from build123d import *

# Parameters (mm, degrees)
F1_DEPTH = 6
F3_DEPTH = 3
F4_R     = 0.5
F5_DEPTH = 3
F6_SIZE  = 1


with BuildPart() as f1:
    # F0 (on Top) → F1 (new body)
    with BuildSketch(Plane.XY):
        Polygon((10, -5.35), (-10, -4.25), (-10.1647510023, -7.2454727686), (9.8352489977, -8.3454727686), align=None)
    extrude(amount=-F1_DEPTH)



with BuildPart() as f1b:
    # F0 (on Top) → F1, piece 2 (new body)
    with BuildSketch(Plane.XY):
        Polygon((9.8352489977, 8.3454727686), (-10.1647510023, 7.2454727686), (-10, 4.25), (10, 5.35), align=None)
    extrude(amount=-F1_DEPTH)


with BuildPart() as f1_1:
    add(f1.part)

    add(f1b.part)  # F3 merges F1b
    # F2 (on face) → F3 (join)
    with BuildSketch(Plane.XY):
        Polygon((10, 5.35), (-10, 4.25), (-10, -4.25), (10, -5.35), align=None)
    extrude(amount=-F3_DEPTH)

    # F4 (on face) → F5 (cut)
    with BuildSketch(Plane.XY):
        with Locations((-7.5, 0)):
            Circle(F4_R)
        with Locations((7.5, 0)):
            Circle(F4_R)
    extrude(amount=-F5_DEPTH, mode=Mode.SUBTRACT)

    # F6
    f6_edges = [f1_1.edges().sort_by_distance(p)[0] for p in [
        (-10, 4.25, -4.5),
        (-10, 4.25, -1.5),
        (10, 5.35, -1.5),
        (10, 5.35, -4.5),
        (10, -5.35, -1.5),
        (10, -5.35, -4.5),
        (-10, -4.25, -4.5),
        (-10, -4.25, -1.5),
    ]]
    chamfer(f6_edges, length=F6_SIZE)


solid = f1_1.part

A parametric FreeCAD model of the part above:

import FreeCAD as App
import Part
import Sketcher


def edges_at(feature, points):
    """Names of the edges that pass closest to the given points."""
    edges = feature.Shape.Edges
    near = lambda p: min(range(len(edges)), key=lambda i: edges[i].distToShape(Part.Vertex(*p))[0])
    return sorted({f"Edge{near(p) + 1}" for p in points})

doc = App.newDocument("Part")
params = doc.addObject("Spreadsheet::Sheet", "Params")
for row, (alias, value) in enumerate([
    ("sketch1_length", "3 mm"),
    ("pad1_length", "6 mm"),
    ("sketch2_length", "3 mm"),
    ("pad2_length", "6 mm"),
    ("sketch3_height", "8.5 mm"),
    ("sketch3_height2", "10.7 mm"),
    ("pad3_length", "3 mm"),
    ("sketch4_diameter", "1 mm"),
    ("pocket1_length", "3 mm"),
    ("chamfer_size", "1 mm"),
], start=1):
    params.set(f"A{row}", alias)
    params.set(f"B{row}", "=" + value)
    params.setAlias(f"B{row}", alias)

body = doc.addObject("PartDesign::Body", "Body")

sketch1 = doc.addObject("Sketcher::SketchObject", "Sketch")
body.addObject(sketch1)
sketch1.AttachmentSupport = (doc.XY_Plane, [""])
sketch1.MapMode = "FlatFace"
sketch1.addGeometry([
    Part.LineSegment(App.Vector(10, -5.35, 0), App.Vector(-10, -4.25, 0)),
    Part.LineSegment(App.Vector(-10, -4.25, 0), App.Vector(-10.164751, -7.245473, 0)),
    Part.LineSegment(App.Vector(-10.164751, -7.245473, 0), App.Vector(9.835249, -8.345473, 0)),
    Part.LineSegment(App.Vector(9.835249, -8.345473, 0), App.Vector(10, -5.35, 0)),
], False)
sketch1.addConstraint([
    Sketcher.Constraint("Coincident", 0, 2, 1, 1),
    Sketcher.Constraint("Coincident", 1, 2, 2, 1),
    Sketcher.Constraint("Coincident", 2, 2, 3, 1),
    Sketcher.Constraint("Coincident", 3, 2, 0, 1),
    Sketcher.Constraint("Perpendicular", 0, 1),
    Sketcher.Constraint("Perpendicular", 1, 2),
    Sketcher.Constraint("Perpendicular", 2, 3),
    Sketcher.Constraint("Distance", 1, 3.0),
    Sketcher.Constraint("DistanceX", 0, 2, -1, 1, 10.0),
    Sketcher.Constraint("DistanceX", -1, 1, 3, 2, 10.0),
    Sketcher.Constraint("DistanceY", 2, 2, 1, 2, 1.1),
    Sketcher.Constraint("DistanceY", 0, 2, -1, 1, 4.25),
])
sketch1.setExpression("Constraints[7]", "Params.sketch1_length")
pad1 = doc.addObject("PartDesign::Pad", "Pad")
body.addObject(pad1)
pad1.Profile = sketch1
pad1.setExpression("Length", "Params.pad1_length")
pad1.Reversed = True
body2 = doc.addObject("PartDesign::Body", "Body001")

sketch2 = doc.addObject("Sketcher::SketchObject", "Sketch001")
body2.addObject(sketch2)
sketch2.AttachmentSupport = (doc.getObject("XY_Plane001"), [""])
sketch2.MapMode = "FlatFace"
sketch2.addGeometry([
    Part.LineSegment(App.Vector(9.835249, 8.345473, 0), App.Vector(-10.164751, 7.245473, 0)),
    Part.LineSegment(App.Vector(-10.164751, 7.245473, 0), App.Vector(-10, 4.25, 0)),
    Part.LineSegment(App.Vector(-10, 4.25, 0), App.Vector(10, 5.35, 0)),
    Part.LineSegment(App.Vector(10, 5.35, 0), App.Vector(9.835249, 8.345473, 0)),
], False)
sketch2.addConstraint([
    Sketcher.Constraint("Coincident", 0, 2, 1, 1),
    Sketcher.Constraint("Coincident", 1, 2, 2, 1),
    Sketcher.Constraint("Coincident", 2, 2, 3, 1),
    Sketcher.Constraint("Coincident", 3, 2, 0, 1),
    Sketcher.Constraint("Perpendicular", 0, 1),
    Sketcher.Constraint("Perpendicular", 1, 2),
    Sketcher.Constraint("Perpendicular", 2, 3),
    Sketcher.Constraint("Distance", 1, 3.0),
    Sketcher.Constraint("DistanceX", 1, 2, -1, 1, 10.0),
    Sketcher.Constraint("DistanceX", -1, 1, 2, 2, 10.0),
    Sketcher.Constraint("DistanceY", 1, 2, 2, 2, 1.1),
    Sketcher.Constraint("DistanceY", -1, 1, 1, 2, 4.25),
])
sketch2.setExpression("Constraints[7]", "Params.sketch2_length")
pad2 = doc.addObject("PartDesign::Pad", "Pad001")
body2.addObject(pad2)
pad2.Profile = sketch2
pad2.setExpression("Length", "Params.pad2_length")
pad2.Reversed = True
body.AllowCompound = True
doc.recompute()

boolean = doc.addObject("PartDesign::Boolean", "Boolean")
body.addObject(boolean)
boolean.Type = "Fuse"
boolean.addObjects([body2])

sketch3 = doc.addObject("Sketcher::SketchObject", "Sketch002")
body.addObject(sketch3)
sketch3.AttachmentSupport = (doc.XY_Plane, [""])
sketch3.MapMode = "FlatFace"
sketch3.addGeometry([
    Part.LineSegment(App.Vector(10, 5.35, 0), App.Vector(-10, 4.25, 0)),
    Part.LineSegment(App.Vector(-10, 4.25, 0), App.Vector(-10, -4.25, 0)),
    Part.LineSegment(App.Vector(-10, -4.25, 0), App.Vector(10, -5.35, 0)),
    Part.LineSegment(App.Vector(10, -5.35, 0), App.Vector(10, 5.35, 0)),
], False)
sketch3.addConstraint([
    Sketcher.Constraint("Coincident", 0, 2, 1, 1),
    Sketcher.Constraint("Coincident", 1, 2, 2, 1),
    Sketcher.Constraint("Coincident", 2, 2, 3, 1),
    Sketcher.Constraint("Coincident", 3, 2, 0, 1),
    Sketcher.Constraint("Vertical", 1),
    Sketcher.Constraint("Vertical", 3),
    Sketcher.Constraint("Equal", 0, 2),
    Sketcher.Constraint("DistanceY", 1, 2, 1, 1, 8.5),
    Sketcher.Constraint("DistanceY", 3, 1, 3, 2, 10.7),
    Sketcher.Constraint("DistanceX", 0, 2, -1, 1, 10.0),
    Sketcher.Constraint("DistanceX", -1, 1, 2, 2, 10.0),
    Sketcher.Constraint("DistanceY", -1, 1, 0, 2, 4.25),
])
sketch3.setExpression("Constraints[7]", "Params.sketch3_height")
sketch3.setExpression("Constraints[8]", "Params.sketch3_height2")
pad3 = doc.addObject("PartDesign::Pad", "Pad002")
body.addObject(pad3)
pad3.Profile = sketch3
pad3.setExpression("Length", "Params.pad3_length")
pad3.Reversed = True

sketch4 = doc.addObject("Sketcher::SketchObject", "Sketch003")
body.addObject(sketch4)
sketch4.AttachmentSupport = (doc.XY_Plane, [""])
sketch4.MapMode = "FlatFace"
sketch4.addGeometry([
    Part.Circle(App.Vector(-7.5, 0, 0), App.Vector(0, 0, 1), 0.5),
    Part.Circle(App.Vector(7.5, 0, 0), App.Vector(0, 0, 1), 0.5),
], False)
sketch4.addConstraint([
    Sketcher.Constraint("Equal", 0, 1),
    Sketcher.Constraint("Symmetric", 0, 3, 1, 3, -1, 1),
    Sketcher.Constraint("PointOnObject", 0, 3, -1),
    Sketcher.Constraint("Diameter", 0, 1.0),
    Sketcher.Constraint("DistanceX", 0, 3, 1, 3, 15.0),
])
sketch4.setExpression("Constraints[3]", "Params.sketch4_diameter")
pocket1 = doc.addObject("PartDesign::Pocket", "Pocket")
body.addObject(pocket1)
pocket1.Profile = sketch4
pocket1.setExpression("Length", "Params.pocket1_length")
doc.recompute()

chamfer = doc.addObject("PartDesign::Chamfer", "Chamfer")
body.addObject(chamfer)
chamfer.Base = (pocket1, edges_at(pocket1, [
    (-10, 4.25, -4.5),
    (-10, 4.25, -1.5),
    (10, 5.35, -1.5),
    (10, 5.35, -4.5),
    (10, -5.35, -1.5),
    (10, -5.35, -4.5),
    (-10, -4.25, -4.5),
    (-10, -4.25, -1.5),
]))
chamfer.setExpression("Size", "Params.chamfer_size")

doc.recompute()
